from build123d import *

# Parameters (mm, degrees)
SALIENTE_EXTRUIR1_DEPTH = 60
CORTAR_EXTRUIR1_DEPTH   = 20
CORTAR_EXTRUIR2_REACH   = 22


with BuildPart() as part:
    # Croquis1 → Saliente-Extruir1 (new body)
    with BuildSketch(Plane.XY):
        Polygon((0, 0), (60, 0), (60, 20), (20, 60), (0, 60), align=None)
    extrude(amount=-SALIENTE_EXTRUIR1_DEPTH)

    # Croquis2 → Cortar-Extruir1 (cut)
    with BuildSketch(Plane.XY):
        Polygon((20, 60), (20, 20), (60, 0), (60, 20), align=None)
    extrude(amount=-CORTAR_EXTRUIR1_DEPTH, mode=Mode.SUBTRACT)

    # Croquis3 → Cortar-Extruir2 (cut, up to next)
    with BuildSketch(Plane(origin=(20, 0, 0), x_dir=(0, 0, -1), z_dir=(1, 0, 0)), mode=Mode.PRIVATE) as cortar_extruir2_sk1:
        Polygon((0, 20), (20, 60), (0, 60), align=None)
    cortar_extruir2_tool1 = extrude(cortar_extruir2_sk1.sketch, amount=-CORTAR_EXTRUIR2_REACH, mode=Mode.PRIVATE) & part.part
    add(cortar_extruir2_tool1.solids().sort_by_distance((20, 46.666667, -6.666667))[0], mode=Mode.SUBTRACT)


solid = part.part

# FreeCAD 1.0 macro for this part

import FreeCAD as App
import Part
import Sketcher

V = App.Vector
Q = App.Units.Quantity


def add_polygon(sketch, points):
    """Adds a closed chain of lines whose ends are joined by coincident constraints."""
    first, n = sketch.GeometryCount, len(points)
    for a, b in zip(points, points[1:] + points[:1]):
        sketch.addGeometry(Part.LineSegment(App.Vector(*a, 0), App.Vector(*b, 0)), False)
    for i in range(n):
        sketch.addConstraint(Sketcher.Constraint("Coincident", first + i, 2, first + (i + 1) % n, 1))

doc = App.newDocument("Part")
params = doc.addObject("Spreadsheet::Sheet", "Params")
for row, (alias, value) in enumerate([
    ("sketch1_width", "60 mm"),
    ("sketch1_width2", "20 mm"),
    ("pad1_length", "60 mm"),
    ("sketch2_height", "40 mm"),
    ("sketch2_height2", "20 mm"),
    ("pocket1_length", "20 mm"),
    ("sketch3_width", "40 mm"),
    ("sketch3_height", "20 mm"),
], start=1):
    params.set(f"A{row}", alias)
    params.set(f"B{row}", "=" + value)
    params.setAlias(f"B{row}", alias)

body = doc.addObject("PartDesign::Body", "Body")

sketch1 = body.newObject("Sketcher::SketchObject", "Sketch")
sketch1.AttachmentSupport = (doc.getObject("XY_Plane"), [""])
sketch1.MapMode = "FlatFace"
add_polygon(sketch1, [(0, 0), (60, 0), (60, 20), (20, 60), (0, 60)])
sketch1.addConstraint([
    Sketcher.Constraint("Horizontal", 0),
    Sketcher.Constraint("Vertical", 1),
    Sketcher.Constraint("Horizontal", 3),
    Sketcher.Constraint("Vertical", 4),
    Sketcher.Constraint("Coincident", 4, 2, -1, 1),
    Sketcher.Constraint("Equal", 3, 1),
    Sketcher.Constraint("Equal", 0, 4),
    Sketcher.Constraint("DistanceX", 0, 1, 0, 2, Q("60 mm")),
    Sketcher.Constraint("DistanceX", 3, 2, 3, 1, Q("20 mm")),
])
sketch1.setExpression("Constraints[12]", "Params.sketch1_width")
sketch1.setExpression("Constraints[13]", "Params.sketch1_width2")
pad1 = body.newObject("PartDesign::Pad", "Pad")
pad1.Profile = sketch1
pad1.setExpression("Length", "Params.pad1_length")
pad1.Reversed = True

sketch2 = body.newObject("Sketcher::SketchObject", "Sketch001")
sketch2.AttachmentSupport = (doc.getObject("XY_Plane"), [""])
sketch2.MapMode = "FlatFace"
add_polygon(sketch2, [(20, 60), (20, 20), (60, 0), (60, 20)])
sketch2.addConstraint([
    Sketcher.Constraint("Vertical", 0),
    Sketcher.Constraint("Vertical", 2),
    Sketcher.Constraint("PointOnObject", 1, 2, -1),
    Sketcher.Constraint("Horizontal", 0, 2, 2, 2),
    Sketcher.Constraint("DistanceY", 0, 2, 0, 1, Q("40 mm")),
    Sketcher.Constraint("DistanceY", 2, 1, 2, 2, Q("20 mm")),
    Sketcher.Constraint("Angle", 3, Q("135 deg")),
    Sketcher.Constraint("DistanceX", -1, 1, 0, 2, Q("20 mm")),
])
sketch2.setExpression("Constraints[8]", "Params.sketch2_height")
sketch2.setExpression("Constraints[9]", "Params.sketch2_height2")
pocket1 = body.newObject("PartDesign::Pocket", "Pocket")
pocket1.Profile = sketch2
pocket1.setExpression("Length", "Params.pocket1_length")

sketch3 = body.newObject("Sketcher::SketchObject", "Sketch002")
sketch3.AttachmentSupport = (doc.getObject("YZ_Plane"), [""])
sketch3.MapMode = "FlatFace"
sketch3.AttachmentOffset = App.Placement(V(0, 0, 20), App.Rotation())
add_polygon(sketch3, [(20, 0), (60, -20), (60, 0)])
sketch3.addConstraint([
    Sketcher.Constraint("Vertical", 1),
    Sketcher.Constraint("Horizontal", 2),
    Sketcher.Constraint("PointOnObject", 1, 2, -1),
    Sketcher.Constraint("DistanceX", 2, 2, 2, 1, Q("40 mm")),
    Sketcher.Constraint("DistanceY", 1, 1, 1, 2, Q("20 mm")),
    Sketcher.Constraint("DistanceX", -1, 1, 0, 2, Q("60 mm")),
])
sketch3.setExpression("Constraints[6]", "Params.sketch3_width")
sketch3.setExpression("Constraints[7]", "Params.sketch3_height")
pocket2 = body.newObject("PartDesign::Pocket", "Pocket001")
pocket2.Profile = sketch3
pocket2.Type = "UpToFirst"

doc.recompute()
